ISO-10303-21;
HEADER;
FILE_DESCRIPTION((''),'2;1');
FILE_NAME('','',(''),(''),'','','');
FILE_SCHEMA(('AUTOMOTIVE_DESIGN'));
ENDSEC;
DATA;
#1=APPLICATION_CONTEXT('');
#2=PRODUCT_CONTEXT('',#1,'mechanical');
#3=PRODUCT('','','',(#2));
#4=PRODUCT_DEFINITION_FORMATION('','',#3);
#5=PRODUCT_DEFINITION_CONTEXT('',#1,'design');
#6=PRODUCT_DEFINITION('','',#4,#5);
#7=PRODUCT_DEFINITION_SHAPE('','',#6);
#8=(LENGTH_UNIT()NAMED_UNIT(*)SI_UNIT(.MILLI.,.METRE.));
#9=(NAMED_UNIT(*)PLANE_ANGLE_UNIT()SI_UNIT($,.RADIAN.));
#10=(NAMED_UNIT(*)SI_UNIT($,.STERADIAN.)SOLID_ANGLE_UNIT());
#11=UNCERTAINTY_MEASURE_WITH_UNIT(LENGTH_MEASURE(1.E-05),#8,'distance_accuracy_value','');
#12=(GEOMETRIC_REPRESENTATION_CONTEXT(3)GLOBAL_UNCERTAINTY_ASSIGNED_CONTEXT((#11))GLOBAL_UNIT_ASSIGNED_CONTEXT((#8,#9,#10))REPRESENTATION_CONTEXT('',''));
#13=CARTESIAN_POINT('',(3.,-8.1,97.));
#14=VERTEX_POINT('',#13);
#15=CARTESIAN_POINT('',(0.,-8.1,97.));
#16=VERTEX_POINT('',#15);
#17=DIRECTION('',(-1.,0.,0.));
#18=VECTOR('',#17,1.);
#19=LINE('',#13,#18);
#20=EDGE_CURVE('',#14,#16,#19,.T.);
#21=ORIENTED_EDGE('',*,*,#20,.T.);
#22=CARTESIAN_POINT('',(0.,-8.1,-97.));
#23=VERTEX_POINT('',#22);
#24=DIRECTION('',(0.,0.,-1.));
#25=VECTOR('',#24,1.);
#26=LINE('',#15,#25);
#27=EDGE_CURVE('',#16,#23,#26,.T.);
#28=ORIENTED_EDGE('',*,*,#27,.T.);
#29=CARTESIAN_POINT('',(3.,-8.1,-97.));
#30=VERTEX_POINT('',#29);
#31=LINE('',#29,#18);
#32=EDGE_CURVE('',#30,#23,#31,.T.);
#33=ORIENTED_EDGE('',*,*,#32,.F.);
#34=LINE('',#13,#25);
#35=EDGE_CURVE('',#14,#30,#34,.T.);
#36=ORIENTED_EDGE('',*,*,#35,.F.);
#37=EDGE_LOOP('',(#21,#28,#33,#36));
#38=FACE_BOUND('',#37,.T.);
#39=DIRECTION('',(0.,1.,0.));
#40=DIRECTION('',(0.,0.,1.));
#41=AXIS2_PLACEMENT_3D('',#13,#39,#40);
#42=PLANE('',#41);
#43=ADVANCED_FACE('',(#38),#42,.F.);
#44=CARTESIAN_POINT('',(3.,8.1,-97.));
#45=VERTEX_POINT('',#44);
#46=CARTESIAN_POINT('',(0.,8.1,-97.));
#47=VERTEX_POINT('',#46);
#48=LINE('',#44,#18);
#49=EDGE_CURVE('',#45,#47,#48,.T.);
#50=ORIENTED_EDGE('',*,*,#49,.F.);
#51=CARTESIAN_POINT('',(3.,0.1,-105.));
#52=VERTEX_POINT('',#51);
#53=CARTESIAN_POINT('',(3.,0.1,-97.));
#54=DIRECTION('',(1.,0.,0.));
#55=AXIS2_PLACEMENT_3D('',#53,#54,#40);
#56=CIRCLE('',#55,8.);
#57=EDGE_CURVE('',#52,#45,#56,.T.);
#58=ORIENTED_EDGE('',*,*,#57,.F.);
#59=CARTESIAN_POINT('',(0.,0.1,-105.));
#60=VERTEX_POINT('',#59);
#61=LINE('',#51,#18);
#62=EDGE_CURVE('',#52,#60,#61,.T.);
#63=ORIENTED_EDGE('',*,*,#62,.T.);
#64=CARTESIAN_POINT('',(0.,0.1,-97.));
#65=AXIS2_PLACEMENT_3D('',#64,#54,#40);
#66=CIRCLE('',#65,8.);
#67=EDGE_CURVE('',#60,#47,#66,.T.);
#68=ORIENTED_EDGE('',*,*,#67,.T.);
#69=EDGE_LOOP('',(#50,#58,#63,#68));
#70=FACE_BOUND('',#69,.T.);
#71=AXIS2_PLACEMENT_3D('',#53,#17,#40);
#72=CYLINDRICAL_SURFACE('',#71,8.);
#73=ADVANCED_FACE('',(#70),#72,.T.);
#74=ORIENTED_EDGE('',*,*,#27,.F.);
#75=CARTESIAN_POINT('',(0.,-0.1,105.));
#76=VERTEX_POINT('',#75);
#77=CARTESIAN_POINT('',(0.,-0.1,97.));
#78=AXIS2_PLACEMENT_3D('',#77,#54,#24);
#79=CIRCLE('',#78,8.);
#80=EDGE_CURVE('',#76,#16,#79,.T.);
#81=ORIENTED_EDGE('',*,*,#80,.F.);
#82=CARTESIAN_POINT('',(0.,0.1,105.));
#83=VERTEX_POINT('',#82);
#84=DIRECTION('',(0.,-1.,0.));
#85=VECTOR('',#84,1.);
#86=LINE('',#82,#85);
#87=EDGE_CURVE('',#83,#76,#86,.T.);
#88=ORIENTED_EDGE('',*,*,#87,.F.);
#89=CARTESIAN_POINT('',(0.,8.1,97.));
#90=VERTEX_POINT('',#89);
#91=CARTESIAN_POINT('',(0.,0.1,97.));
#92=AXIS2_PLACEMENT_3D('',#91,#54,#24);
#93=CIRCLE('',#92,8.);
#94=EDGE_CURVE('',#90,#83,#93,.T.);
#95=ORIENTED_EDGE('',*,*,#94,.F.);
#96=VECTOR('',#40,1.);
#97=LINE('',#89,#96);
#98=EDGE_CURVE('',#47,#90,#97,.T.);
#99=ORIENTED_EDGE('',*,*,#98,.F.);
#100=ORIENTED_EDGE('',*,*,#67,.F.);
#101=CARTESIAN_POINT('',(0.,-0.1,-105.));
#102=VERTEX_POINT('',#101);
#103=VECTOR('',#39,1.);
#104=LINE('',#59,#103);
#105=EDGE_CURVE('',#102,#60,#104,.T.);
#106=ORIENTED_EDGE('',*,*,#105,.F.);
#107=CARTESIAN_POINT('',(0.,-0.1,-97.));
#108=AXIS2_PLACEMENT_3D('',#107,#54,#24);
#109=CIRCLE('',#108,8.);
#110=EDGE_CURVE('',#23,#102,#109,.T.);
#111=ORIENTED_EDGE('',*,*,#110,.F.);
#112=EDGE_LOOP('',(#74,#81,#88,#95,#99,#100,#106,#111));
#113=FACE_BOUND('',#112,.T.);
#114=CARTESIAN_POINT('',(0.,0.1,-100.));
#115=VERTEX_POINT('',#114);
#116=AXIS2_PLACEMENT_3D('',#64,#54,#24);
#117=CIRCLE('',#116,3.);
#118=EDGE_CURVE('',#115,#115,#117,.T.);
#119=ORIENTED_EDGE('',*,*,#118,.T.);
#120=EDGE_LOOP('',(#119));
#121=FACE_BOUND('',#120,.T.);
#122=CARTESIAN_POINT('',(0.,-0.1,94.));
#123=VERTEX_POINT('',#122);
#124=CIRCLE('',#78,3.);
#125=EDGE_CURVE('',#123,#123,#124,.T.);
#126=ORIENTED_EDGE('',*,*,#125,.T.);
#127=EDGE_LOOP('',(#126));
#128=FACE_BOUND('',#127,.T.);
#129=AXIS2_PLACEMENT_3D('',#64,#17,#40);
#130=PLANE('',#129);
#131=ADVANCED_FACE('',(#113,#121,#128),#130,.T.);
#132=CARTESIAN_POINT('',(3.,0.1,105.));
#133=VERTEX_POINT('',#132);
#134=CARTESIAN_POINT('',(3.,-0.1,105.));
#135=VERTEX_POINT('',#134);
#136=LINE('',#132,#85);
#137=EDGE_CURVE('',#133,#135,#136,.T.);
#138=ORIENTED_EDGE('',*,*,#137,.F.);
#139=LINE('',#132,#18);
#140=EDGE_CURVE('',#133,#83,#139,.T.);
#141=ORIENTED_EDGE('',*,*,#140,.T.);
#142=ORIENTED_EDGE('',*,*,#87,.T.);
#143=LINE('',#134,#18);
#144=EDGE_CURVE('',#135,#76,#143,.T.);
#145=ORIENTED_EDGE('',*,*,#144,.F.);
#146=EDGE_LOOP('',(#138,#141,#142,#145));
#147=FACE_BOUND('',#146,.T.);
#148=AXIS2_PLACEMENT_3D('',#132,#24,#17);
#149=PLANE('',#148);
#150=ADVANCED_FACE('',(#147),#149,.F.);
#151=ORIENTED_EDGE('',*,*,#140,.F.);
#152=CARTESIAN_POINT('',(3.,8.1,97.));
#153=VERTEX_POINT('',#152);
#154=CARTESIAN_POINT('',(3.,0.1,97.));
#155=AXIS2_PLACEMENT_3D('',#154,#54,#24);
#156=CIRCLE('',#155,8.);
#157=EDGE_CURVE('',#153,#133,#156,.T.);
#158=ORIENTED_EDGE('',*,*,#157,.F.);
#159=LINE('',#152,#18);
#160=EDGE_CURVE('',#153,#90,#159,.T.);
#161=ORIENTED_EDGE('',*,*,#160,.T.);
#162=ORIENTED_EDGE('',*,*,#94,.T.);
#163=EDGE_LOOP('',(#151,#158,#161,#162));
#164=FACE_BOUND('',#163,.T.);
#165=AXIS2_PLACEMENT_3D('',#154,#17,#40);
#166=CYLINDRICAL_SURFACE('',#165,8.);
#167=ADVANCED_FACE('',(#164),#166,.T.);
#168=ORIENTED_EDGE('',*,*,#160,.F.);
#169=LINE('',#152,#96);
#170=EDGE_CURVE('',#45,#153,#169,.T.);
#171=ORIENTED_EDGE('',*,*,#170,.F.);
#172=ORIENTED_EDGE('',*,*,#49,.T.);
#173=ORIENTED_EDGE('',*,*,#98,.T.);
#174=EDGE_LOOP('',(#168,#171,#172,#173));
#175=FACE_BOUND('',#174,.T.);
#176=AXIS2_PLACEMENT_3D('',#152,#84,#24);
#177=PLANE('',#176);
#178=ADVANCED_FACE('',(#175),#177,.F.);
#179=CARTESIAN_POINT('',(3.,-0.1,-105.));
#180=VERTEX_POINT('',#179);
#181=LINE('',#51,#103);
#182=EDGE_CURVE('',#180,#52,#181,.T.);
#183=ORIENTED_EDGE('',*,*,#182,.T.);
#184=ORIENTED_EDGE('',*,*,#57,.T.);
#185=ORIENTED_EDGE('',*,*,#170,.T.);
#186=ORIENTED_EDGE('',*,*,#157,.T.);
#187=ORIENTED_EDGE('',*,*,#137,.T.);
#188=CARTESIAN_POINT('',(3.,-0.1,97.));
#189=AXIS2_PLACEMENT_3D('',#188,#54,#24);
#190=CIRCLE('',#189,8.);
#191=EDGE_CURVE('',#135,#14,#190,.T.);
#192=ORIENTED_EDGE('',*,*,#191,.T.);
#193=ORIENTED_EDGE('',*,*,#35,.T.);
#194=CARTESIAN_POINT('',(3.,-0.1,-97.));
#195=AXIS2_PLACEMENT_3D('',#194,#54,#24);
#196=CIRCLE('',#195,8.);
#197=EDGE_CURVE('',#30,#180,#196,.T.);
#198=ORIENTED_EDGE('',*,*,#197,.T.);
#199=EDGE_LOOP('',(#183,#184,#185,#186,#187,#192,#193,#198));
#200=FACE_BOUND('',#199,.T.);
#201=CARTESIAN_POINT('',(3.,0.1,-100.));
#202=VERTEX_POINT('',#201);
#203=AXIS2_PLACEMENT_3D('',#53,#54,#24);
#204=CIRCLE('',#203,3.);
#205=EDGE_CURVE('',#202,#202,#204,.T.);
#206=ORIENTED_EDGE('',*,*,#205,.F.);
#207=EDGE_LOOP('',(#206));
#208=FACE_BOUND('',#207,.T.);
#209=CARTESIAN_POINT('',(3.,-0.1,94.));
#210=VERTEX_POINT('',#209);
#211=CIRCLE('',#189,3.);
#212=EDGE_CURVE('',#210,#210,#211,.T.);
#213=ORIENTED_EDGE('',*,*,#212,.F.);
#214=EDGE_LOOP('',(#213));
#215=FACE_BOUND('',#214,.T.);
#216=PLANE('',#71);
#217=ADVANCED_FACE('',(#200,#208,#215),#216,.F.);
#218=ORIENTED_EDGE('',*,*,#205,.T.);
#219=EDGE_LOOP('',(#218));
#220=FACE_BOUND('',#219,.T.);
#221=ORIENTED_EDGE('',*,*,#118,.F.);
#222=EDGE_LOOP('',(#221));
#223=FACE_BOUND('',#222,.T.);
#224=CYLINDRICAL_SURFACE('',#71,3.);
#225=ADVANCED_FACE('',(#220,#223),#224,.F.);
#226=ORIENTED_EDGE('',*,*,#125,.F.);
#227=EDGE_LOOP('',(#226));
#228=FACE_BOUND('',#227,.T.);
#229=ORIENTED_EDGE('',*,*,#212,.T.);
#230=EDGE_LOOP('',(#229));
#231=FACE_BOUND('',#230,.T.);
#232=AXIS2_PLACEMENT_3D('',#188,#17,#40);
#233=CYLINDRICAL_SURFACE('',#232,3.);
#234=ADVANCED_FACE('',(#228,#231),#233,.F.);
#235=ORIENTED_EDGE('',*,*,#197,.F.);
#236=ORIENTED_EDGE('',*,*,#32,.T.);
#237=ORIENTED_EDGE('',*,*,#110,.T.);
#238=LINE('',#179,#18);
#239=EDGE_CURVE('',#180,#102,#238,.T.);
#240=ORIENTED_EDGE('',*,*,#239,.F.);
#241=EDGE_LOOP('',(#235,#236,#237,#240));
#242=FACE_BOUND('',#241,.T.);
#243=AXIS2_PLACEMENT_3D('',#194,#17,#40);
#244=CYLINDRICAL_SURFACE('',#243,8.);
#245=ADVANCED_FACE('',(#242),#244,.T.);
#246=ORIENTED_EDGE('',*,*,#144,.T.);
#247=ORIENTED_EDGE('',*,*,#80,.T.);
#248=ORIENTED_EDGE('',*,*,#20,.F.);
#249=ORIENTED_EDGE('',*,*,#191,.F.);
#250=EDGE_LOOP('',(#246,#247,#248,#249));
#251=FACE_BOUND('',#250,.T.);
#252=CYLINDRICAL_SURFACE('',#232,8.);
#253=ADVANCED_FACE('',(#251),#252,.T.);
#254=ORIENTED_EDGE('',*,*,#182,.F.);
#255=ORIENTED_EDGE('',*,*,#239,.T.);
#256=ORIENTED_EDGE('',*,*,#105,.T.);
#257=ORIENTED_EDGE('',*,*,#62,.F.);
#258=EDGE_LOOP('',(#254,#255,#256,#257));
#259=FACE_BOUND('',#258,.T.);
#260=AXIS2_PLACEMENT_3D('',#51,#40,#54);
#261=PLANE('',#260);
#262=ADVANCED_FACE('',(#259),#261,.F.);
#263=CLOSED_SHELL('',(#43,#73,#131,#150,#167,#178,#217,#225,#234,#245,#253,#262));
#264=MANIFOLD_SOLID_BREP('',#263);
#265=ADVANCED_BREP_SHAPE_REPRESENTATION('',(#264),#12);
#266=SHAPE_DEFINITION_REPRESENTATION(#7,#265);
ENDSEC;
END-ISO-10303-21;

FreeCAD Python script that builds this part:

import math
import FreeCAD as App
import Part
import Sketcher

doc = App.newDocument("Part")
body = doc.addObject("PartDesign::Body", "Body")

sketch1 = body.newObject("Sketcher::SketchObject", "Sketch")
sketch1.AttachmentSupport = (doc.getObject("YZ_Plane"), [""])
sketch1.MapMode = "FlatFace"
sketch1.addGeometry([
    Part.LineSegment(App.Vector(8.1, -97, 0), App.Vector(8.1, 97, 0)),
    Part.ArcOfCircle(Part.Circle(App.Vector(0.1, 97, 0), App.Vector(0, 0, 1), 8), math.radians(0), math.radians(90)),
    Part.LineSegment(App.Vector(0.1, 105, 0), App.Vector(-0.1, 105, 0)),
    Part.ArcOfCircle(Part.Circle(App.Vector(-0.1, 97, 0), App.Vector(0, 0, 1), 8), math.radians(90), math.radians(180)),
    Part.LineSegment(App.Vector(-8.1, 97, 0), App.Vector(-8.1, -97, 0)),
    Part.ArcOfCircle(Part.Circle(App.Vector(-0.1, -97, 0), App.Vector(0, 0, 1), 8), math.radians(-180), math.radians(-90)),
    Part.LineSegment(App.Vector(-0.1, -105, 0), App.Vector(0.1, -105, 0)),
    Part.ArcOfCircle(Part.Circle(App.Vector(0.1, -97, 0), App.Vector(0, 0, 1), 8), math.radians(-90), math.radians(0)),
    Part.Circle(App.Vector(-0.1, 97, 0), App.Vector(0, 0, 1), 3),
    Part.Circle(App.Vector(0.1, -97, 0), App.Vector(0, 0, 1), 3),
], False)
sketch1.addConstraint([
    Sketcher.Constraint("Tangent", 0, 2, 1, 1),
    Sketcher.Constraint("Tangent", 1, 2, 2, 1),
    Sketcher.Constraint("Tangent", 2, 2, 3, 1),
    Sketcher.Constraint("Tangent", 3, 2, 4, 1),
    Sketcher.Constraint("Tangent", 4, 2, 5, 1),
    Sketcher.Constraint("Tangent", 5, 2, 6, 1),
    Sketcher.Constraint("Tangent", 6, 2, 7, 1),
    Sketcher.Constraint("Tangent", 7, 2, 0, 1),
    Sketcher.Constraint("Vertical", 0),
    Sketcher.Constraint("Horizontal", 2),
    Sketcher.Constraint("Vertical", 4),
    Sketcher.Constraint("Horizontal", 6),
    Sketcher.Constraint("Coincident", 8, 3, 3, 3),
    Sketcher.Constraint("Coincident", 9, 3, 7, 3),
    Sketcher.Constraint("Equal", 1, 3),
    Sketcher.Constraint("Equal", 3, 5),
    Sketcher.Constraint("Equal", 5, 7),
    Sketcher.Constraint("Equal", 8, 9),
    Sketcher.Constraint("Symmetric", 1, 3, 5, 3, -1, 1),
    Sketcher.Constraint("Diameter", 8, 6.0),
    Sketcher.Constraint("Radius", 1, 8.0),
    Sketcher.Constraint("DistanceY", 0, 1, 0, 2, 194.0),
    Sketcher.Constraint("DistanceX", 2, 2, 2, 1, 0.2),
])
pad1 = body.newObject("PartDesign::Pad", "Pad")
pad1.Profile = sketch1
pad1.Length = 3

doc.recompute()
